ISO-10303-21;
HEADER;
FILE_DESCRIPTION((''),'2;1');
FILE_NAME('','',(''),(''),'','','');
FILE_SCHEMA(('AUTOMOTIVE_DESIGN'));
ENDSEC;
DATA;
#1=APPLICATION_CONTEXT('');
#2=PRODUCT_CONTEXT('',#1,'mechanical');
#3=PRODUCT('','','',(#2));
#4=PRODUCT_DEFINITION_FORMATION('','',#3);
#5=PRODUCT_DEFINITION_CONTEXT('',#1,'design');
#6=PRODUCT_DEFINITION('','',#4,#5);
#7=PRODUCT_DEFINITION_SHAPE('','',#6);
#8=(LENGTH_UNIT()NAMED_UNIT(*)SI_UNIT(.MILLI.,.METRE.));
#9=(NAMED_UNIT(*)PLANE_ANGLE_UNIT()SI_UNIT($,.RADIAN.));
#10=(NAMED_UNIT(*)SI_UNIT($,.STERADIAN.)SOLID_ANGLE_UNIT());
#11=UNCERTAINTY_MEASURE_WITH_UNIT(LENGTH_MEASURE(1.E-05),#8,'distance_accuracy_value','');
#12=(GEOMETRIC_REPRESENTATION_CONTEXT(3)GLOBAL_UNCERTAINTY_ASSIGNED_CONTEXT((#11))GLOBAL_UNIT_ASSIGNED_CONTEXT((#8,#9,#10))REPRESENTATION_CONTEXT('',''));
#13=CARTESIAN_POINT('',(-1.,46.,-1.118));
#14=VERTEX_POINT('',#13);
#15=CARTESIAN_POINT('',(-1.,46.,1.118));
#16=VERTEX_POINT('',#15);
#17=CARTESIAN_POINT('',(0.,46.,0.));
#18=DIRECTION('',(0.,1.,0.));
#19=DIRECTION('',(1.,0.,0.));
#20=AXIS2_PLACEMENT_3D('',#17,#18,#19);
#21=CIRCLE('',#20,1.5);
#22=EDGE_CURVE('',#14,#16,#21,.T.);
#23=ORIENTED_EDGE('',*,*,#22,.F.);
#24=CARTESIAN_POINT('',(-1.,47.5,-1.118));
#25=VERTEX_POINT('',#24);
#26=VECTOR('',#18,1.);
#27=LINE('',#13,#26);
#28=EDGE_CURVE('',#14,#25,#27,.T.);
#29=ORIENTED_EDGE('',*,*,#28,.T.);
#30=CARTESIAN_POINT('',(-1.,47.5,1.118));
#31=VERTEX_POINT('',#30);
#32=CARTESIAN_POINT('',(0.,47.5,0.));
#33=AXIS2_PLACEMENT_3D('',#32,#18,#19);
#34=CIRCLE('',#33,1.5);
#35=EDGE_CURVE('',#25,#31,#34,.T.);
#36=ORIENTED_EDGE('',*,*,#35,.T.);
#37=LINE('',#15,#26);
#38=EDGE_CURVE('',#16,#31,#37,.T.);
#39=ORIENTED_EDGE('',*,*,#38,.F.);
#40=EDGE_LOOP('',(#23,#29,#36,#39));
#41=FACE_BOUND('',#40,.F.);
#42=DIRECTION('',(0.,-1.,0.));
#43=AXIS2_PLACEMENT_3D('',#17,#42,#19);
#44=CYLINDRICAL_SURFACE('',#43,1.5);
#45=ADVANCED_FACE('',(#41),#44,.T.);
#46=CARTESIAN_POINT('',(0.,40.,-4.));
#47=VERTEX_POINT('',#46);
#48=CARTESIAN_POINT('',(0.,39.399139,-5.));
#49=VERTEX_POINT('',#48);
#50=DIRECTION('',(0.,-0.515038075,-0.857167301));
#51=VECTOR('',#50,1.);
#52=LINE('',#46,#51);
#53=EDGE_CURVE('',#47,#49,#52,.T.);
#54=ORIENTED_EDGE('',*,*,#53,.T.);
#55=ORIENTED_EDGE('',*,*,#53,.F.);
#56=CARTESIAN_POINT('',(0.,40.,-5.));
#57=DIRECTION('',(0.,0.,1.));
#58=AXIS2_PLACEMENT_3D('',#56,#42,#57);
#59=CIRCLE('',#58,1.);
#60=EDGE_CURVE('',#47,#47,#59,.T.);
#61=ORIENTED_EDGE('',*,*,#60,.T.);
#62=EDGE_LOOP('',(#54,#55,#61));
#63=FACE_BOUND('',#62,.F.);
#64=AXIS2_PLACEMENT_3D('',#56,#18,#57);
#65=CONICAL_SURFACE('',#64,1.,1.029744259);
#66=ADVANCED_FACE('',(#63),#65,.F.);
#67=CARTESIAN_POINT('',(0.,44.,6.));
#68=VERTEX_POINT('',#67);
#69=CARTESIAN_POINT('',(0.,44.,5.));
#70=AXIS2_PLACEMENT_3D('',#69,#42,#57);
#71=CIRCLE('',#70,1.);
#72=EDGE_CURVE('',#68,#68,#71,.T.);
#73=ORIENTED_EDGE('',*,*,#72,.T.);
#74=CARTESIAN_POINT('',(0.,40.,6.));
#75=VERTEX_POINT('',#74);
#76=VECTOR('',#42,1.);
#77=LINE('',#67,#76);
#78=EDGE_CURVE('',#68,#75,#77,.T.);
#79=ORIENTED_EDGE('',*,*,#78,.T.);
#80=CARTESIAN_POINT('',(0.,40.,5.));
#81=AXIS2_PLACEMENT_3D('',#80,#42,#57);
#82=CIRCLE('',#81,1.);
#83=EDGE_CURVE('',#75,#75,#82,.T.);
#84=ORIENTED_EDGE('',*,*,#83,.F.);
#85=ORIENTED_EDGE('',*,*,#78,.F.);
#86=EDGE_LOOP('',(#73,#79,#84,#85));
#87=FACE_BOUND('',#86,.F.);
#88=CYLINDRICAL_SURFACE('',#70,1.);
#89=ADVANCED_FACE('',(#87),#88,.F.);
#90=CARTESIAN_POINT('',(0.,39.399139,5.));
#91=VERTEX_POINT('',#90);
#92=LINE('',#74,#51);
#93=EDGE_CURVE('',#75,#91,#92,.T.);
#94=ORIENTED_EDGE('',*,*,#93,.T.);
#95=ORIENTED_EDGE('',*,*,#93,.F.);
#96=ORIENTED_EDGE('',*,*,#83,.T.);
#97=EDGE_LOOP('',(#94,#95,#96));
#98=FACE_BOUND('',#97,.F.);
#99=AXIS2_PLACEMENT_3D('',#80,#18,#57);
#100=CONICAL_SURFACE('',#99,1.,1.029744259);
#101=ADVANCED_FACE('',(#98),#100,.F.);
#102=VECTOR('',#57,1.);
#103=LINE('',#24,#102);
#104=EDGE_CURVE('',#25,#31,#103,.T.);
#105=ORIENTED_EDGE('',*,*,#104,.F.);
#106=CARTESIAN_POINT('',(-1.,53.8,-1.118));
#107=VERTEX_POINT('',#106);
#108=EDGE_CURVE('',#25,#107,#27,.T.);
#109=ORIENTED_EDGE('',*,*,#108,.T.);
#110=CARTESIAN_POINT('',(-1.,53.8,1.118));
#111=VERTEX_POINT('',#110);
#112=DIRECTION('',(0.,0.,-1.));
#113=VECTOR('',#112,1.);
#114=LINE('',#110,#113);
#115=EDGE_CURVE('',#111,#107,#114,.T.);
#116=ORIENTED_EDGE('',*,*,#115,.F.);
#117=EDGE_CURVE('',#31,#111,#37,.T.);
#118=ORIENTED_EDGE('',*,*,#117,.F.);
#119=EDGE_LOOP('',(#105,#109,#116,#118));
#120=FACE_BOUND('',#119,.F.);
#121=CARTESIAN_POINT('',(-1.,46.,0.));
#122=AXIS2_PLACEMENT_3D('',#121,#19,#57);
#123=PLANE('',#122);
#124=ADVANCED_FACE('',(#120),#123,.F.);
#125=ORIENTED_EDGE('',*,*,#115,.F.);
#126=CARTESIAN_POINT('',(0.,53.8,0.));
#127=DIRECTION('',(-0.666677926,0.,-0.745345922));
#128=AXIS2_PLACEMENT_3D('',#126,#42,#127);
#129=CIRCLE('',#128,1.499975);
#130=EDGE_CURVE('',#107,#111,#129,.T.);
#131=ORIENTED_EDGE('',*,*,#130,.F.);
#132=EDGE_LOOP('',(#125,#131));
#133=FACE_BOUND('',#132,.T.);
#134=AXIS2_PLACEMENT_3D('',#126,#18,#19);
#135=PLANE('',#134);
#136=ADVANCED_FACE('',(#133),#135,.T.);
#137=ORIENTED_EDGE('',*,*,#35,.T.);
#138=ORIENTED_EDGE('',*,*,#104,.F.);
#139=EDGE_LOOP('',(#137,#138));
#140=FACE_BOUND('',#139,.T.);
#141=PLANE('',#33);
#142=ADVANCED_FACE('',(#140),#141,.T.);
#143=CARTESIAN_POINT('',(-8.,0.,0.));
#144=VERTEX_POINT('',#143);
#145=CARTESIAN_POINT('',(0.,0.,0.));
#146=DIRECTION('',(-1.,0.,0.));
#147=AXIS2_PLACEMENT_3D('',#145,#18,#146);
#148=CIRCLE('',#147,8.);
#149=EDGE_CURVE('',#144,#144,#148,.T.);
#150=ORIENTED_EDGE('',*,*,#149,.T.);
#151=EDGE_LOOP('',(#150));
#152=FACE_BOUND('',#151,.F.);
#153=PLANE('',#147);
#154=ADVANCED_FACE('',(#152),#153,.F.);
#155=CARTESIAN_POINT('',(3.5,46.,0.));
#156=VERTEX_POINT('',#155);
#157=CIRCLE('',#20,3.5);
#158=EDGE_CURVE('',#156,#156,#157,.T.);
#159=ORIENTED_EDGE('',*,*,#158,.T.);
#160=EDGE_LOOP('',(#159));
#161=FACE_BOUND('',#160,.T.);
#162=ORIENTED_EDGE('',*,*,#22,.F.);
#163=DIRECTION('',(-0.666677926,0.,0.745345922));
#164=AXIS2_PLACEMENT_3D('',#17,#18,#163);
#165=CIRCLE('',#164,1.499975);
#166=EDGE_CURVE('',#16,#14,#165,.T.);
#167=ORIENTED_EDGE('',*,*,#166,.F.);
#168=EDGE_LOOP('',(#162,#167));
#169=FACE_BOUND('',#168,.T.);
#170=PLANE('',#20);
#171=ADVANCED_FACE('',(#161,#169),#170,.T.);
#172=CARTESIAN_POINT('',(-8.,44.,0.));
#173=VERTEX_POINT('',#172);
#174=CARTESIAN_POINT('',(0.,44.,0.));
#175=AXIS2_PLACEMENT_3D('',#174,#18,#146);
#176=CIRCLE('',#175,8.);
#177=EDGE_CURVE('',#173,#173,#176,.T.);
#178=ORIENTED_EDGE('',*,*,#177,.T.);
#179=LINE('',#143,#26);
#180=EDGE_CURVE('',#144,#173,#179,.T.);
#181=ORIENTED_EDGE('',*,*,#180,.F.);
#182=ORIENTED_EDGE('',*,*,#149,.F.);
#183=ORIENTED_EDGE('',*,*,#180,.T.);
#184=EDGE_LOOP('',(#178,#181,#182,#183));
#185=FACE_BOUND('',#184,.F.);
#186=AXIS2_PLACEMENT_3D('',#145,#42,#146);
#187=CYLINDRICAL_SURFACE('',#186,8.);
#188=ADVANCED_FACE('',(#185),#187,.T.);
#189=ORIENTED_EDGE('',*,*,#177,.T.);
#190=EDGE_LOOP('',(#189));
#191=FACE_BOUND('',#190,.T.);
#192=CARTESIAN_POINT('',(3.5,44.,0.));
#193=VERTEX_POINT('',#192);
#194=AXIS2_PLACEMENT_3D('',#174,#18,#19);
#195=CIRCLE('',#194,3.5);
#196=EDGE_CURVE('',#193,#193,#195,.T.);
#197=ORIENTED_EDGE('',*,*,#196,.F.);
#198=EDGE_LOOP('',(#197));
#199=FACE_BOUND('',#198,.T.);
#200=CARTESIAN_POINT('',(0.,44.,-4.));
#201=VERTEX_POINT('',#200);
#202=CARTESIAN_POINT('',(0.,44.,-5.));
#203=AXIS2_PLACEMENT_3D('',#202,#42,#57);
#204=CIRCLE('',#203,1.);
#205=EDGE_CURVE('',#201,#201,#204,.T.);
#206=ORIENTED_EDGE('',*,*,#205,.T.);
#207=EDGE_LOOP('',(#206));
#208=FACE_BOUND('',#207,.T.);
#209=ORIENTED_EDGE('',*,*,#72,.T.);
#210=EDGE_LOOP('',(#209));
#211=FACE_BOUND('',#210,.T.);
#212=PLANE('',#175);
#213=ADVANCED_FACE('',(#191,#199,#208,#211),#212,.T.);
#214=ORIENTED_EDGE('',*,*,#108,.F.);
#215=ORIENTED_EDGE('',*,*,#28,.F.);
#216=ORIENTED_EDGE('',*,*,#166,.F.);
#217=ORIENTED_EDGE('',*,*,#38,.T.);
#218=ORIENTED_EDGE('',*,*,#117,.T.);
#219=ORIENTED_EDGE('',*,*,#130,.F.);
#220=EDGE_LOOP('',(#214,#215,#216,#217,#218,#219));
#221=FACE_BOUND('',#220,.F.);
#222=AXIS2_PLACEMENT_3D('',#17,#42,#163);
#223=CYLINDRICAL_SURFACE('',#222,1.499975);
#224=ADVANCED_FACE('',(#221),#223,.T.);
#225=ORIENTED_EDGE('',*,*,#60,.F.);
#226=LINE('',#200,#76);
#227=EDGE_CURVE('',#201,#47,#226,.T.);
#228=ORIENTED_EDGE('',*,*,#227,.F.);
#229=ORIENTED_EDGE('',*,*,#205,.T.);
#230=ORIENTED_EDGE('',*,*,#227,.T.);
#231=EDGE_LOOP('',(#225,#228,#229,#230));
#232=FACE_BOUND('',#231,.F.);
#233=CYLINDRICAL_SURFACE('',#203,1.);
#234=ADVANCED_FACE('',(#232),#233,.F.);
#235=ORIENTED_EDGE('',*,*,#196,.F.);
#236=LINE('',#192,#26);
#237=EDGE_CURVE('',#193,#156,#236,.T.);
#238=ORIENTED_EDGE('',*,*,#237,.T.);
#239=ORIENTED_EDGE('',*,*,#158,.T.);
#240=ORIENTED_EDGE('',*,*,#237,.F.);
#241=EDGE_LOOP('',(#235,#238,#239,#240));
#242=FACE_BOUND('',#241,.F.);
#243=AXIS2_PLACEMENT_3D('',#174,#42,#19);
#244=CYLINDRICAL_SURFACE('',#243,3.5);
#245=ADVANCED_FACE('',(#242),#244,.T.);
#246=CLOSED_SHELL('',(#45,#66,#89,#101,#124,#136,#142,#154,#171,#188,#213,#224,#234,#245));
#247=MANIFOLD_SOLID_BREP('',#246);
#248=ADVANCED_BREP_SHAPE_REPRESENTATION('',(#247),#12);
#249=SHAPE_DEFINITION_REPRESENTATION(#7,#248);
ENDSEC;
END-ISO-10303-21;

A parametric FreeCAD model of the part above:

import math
import FreeCAD as App
import Part
import Sketcher

V = App.Vector
Q = App.Units.Quantity

doc = App.newDocument("Part")
body = doc.addObject("PartDesign::Body", "Body")

sketch1 = doc.addObject("Sketcher::SketchObject", "Sketch")
body.addObject(sketch1)
sketch1.AttachmentSupport = (doc.XZ_Plane, [""])
sketch1.MapMode = "FlatFace"
sketch1.addGeometry(Part.Circle(V(0, 0, 0), V(0, 0, 1), 8), False)
sketch1.addConstraint([
    Sketcher.Constraint("Coincident", 0, 3, -1, 1),
    Sketcher.Constraint("Diameter", 0, Q("16 mm")),
])
pad1 = doc.addObject("PartDesign::Pad", "Pad")
body.addObject(pad1)
pad1.Profile = sketch1
pad1.Length = 44
pad1.Reversed = True

sketch2 = doc.addObject("Sketcher::SketchObject", "Sketch001")
body.addObject(sketch2)
sketch2.AttachmentSupport = (doc.XZ_Plane, [""])
sketch2.MapMode = "FlatFace"
sketch2.AttachmentOffset = App.Placement(V(0, 0, -44), App.Rotation())
sketch2.addGeometry(Part.Circle(V(0, 0, 0), V(0, 0, 1), 3.5), False)
sketch2.addConstraint([
    Sketcher.Constraint("Coincident", 0, 3, -1, 1),
    Sketcher.Constraint("Diameter", 0, Q("7 mm")),
])
pad2 = doc.addObject("PartDesign::Pad", "Pad001")
body.addObject(pad2)
pad2.Profile = sketch2
pad2.Length = 2
pad2.Reversed = True

sketch3 = doc.addObject("Sketcher::SketchObject", "Sketch002")
body.addObject(sketch3)
sketch3.AttachmentSupport = (doc.XZ_Plane, [""])
sketch3.MapMode = "FlatFace"
sketch3.AttachmentOffset = App.Placement(V(0, 0, -46), App.Rotation())
sketch3.addGeometry([
    Part.ArcOfCircle(Part.Circle(V(0, 0, 0), V(0, 0, 1), 1.5), math.radians(-132), math.radians(132)),
    Part.LineSegment(V(-1, -1.1, 0), V(-1, 1.1, 0)),
], False)
sketch3.addConstraint([
    Sketcher.Constraint("Coincident", 0, 1, 1, 1),
    Sketcher.Constraint("Coincident", 1, 2, 0, 2),
    Sketcher.Constraint("Vertical", 1),
    Sketcher.Constraint("Coincident", 0, 3, -1, 1),
    Sketcher.Constraint("Radius", 0, Q("1.5 mm")),
    Sketcher.Constraint("DistanceX", 0, 1, -1, 1, Q("1 mm")),
])
pad3 = doc.addObject("PartDesign::Pad", "Pad002")
body.addObject(pad3)
pad3.Profile = sketch3
pad3.Length = 7.8
pad3.Reversed = True

sketch4 = doc.addObject("Sketcher::SketchObject", "Sketch003")
body.addObject(sketch4)
sketch4.AttachmentSupport = (doc.XZ_Plane, [""])
sketch4.MapMode = "FlatFace"
sketch4.AttachmentOffset = App.Placement(V(0, 0, -46), App.Rotation())
sketch4.addGeometry([
    Part.LineSegment(V(-1, 1.1, 0), V(-1, -1.1, 0)),
    Part.ArcOfCircle(Part.Circle(V(0, 0, 0), V(0, 0, 1), 1.5), math.radians(132), math.radians(228)),
], False)
sketch4.addConstraint([
    Sketcher.Constraint("Coincident", 0, 1, 1, 1),
    Sketcher.Constraint("Coincident", 1, 2, 0, 2),
    Sketcher.Constraint("Vertical", 0),
    Sketcher.Constraint("Coincident", 1, 3, -1, 1),
    Sketcher.Constraint("Radius", 1, Q("1.5 mm")),
    Sketcher.Constraint("DistanceX", 0, 1, -1, 1, Q("1 mm")),
])
pad4 = doc.addObject("PartDesign::Pad", "Pad003")
body.addObject(pad4)
pad4.Profile = sketch4
pad4.Length = 1.5
pad4.Reversed = True

sketch5 = doc.addObject("Sketcher::SketchObject", "Sketch004")
body.addObject(sketch5)
sketch5.AttachmentSupport = (doc.XZ_Plane, [""])
sketch5.MapMode = "FlatFace"
sketch5.AttachmentOffset = App.Placement(V(0, 0, -44), App.Rotation())
sketch5.addGeometry([
    Part.Circle(V(0, -5, 0), V(0, 0, 1), 1),
    Part.Circle(V(0, 5, 0), V(0, 0, 1), 1),
], False)
sketch5.addConstraint([
    Sketcher.Constraint("Equal", 0, 1),
    Sketcher.Constraint("Symmetric", 0, 3, 1, 3, -1, 1),
    Sketcher.Constraint("PointOnObject", 0, 3, -2),
    Sketcher.Constraint("Diameter", 0, Q("2 mm")),
    Sketcher.Constraint("DistanceY", 0, 3, -1, 1, Q("5 mm")),
])
doc.recompute()
hole = doc.addObject("PartDesign::Hole", "Hole")
body.addObject(hole)
hole.Profile = sketch5
hole.ThreadType = "None"
hole.Diameter = 2
hole.DepthType = "Dimension"
hole.Depth = 4
hole.DrillPoint = "Angled"
hole.DrillPointAngle = 118
hole.Reversed = True

doc.recompute()
